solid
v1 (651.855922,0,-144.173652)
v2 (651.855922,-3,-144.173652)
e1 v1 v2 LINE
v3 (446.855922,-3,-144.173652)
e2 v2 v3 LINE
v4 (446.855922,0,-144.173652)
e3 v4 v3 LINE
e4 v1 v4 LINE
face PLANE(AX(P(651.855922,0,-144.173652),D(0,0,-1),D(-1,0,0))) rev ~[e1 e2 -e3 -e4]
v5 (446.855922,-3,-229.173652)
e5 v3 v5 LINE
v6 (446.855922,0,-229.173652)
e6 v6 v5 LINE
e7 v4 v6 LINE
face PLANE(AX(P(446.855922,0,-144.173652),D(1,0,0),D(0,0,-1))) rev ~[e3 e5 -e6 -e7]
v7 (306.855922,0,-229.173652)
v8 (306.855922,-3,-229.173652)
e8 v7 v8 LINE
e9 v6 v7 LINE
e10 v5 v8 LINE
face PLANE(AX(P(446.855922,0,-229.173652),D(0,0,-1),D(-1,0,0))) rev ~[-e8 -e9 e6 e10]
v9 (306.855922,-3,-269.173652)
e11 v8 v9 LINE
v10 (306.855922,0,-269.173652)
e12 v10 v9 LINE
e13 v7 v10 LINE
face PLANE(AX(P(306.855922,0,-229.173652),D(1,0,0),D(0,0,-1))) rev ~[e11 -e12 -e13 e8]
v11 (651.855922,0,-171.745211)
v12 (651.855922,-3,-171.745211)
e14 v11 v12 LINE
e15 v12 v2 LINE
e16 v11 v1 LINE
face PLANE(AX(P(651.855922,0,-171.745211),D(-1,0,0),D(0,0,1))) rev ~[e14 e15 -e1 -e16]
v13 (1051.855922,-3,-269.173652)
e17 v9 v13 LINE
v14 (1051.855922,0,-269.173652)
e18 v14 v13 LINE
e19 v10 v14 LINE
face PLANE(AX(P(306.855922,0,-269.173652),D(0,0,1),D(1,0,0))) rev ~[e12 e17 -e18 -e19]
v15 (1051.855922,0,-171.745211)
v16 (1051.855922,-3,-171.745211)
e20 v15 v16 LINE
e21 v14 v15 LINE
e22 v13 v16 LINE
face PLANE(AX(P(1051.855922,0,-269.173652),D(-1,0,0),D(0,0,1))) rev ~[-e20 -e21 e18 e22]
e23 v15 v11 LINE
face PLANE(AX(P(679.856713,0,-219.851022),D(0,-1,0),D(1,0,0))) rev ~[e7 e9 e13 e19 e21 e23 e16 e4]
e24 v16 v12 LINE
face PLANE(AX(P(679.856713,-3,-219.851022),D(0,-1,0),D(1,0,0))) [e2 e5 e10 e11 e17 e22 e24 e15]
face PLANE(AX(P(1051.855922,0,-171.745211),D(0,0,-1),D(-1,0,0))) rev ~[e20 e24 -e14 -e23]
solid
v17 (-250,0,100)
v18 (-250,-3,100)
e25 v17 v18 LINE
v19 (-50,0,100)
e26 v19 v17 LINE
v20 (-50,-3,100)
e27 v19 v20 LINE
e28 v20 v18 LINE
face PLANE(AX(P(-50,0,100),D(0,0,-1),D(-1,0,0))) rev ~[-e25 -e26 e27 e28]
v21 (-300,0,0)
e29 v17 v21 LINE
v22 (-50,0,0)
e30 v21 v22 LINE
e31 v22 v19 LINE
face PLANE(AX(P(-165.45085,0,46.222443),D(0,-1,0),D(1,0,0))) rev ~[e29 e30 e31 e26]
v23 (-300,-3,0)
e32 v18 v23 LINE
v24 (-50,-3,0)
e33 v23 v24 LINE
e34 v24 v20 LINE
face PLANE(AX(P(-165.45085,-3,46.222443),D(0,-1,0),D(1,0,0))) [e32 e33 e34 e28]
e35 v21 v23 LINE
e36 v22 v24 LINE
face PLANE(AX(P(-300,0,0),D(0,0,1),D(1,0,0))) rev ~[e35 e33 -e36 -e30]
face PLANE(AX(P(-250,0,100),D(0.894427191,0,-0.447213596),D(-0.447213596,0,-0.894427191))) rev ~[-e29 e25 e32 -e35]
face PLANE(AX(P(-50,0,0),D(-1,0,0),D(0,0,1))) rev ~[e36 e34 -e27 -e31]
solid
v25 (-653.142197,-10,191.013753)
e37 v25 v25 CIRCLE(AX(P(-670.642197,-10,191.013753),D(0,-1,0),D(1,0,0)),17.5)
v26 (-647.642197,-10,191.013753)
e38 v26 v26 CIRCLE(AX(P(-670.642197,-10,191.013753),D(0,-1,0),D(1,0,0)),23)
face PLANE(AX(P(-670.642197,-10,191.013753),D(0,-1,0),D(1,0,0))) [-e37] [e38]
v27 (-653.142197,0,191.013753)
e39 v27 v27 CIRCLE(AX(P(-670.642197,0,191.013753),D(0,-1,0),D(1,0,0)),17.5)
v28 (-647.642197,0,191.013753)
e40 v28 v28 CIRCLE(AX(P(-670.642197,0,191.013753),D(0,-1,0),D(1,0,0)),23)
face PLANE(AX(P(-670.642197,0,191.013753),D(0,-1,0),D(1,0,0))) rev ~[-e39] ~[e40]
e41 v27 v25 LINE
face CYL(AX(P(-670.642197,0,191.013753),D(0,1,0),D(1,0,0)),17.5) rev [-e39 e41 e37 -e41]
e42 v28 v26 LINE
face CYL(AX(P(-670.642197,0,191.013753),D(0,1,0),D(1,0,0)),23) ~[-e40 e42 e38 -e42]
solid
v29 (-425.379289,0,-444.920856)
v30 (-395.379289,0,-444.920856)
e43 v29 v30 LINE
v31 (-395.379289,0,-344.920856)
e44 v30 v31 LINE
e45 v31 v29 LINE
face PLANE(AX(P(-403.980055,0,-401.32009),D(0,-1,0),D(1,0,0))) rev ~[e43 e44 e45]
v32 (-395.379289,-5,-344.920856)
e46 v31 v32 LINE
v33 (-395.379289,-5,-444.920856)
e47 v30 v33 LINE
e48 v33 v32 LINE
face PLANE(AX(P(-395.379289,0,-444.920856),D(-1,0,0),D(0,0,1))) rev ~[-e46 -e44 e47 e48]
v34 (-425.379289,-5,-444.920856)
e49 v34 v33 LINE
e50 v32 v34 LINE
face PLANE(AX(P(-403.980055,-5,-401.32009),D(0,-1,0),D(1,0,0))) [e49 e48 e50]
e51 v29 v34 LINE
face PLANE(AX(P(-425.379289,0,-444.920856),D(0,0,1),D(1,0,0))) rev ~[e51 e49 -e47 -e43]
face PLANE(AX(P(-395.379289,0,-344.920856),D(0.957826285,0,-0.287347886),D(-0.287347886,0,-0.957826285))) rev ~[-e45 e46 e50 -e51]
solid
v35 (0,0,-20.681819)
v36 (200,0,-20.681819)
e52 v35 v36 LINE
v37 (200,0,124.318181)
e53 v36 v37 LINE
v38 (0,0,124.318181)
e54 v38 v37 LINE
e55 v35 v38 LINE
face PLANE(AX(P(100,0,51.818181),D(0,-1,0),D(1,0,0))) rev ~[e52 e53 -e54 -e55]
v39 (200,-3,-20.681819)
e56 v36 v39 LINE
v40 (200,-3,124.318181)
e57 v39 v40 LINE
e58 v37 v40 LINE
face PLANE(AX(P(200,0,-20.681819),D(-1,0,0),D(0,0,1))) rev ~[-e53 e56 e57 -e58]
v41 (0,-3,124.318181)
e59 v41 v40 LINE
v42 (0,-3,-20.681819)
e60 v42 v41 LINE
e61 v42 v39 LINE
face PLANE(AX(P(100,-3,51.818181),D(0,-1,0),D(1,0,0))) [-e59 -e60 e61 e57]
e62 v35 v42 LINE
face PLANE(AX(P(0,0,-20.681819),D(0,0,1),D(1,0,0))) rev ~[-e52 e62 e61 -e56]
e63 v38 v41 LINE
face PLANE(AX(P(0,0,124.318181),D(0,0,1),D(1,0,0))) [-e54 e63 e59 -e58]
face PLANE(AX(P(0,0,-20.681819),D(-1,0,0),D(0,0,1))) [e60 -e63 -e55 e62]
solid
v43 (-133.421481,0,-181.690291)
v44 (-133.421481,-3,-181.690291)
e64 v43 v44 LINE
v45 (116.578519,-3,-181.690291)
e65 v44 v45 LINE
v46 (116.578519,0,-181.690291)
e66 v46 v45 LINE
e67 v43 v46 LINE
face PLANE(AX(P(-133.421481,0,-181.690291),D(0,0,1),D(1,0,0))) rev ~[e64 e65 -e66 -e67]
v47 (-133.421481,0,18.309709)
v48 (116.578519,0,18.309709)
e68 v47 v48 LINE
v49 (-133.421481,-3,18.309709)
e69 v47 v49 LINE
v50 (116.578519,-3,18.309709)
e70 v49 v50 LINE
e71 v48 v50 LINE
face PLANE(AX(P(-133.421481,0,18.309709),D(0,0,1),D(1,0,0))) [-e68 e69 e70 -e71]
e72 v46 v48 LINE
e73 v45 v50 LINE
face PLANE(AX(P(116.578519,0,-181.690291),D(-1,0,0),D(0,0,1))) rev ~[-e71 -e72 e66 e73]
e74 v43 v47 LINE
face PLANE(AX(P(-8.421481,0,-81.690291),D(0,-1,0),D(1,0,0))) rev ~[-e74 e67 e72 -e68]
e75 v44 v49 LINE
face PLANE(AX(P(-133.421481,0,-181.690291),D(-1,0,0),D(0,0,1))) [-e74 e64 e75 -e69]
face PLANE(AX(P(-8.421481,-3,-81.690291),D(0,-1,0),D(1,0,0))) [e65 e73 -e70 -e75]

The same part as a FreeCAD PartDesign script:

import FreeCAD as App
import Part
import Sketcher

V = App.Vector


def add_polygon(sketch, points):
    """Adds a closed chain of lines whose ends are joined by coincident constraints."""
    first, n = sketch.GeometryCount, len(points)
    for a, b in zip(points, points[1:] + points[:1]):
        sketch.addGeometry(Part.LineSegment(App.Vector(*a, 0), App.Vector(*b, 0)), False)
    for i in range(n):
        sketch.addConstraint(Sketcher.Constraint("Coincident", first + i, 2, first + (i + 1) % n, 1))

doc = App.newDocument("Part")
body = doc.addObject("PartDesign::Body", "Body")

sketch1 = body.newObject("Sketcher::SketchObject", "Sketch")
sketch1.AttachmentSupport = (doc.getObject("XZ_Plane"), [""])
sketch1.MapMode = "FlatFace"
add_polygon(sketch1, [(0, 124.318181), (0, -20.681819), (200, -20.681819), (200, 124.318181)])
sketch1.addConstraint([
    Sketcher.Constraint("Vertical", 0),
    Sketcher.Constraint("Horizontal", 1),
    Sketcher.Constraint("Vertical", 2),
    Sketcher.Constraint("Horizontal", 3),
    Sketcher.Constraint("PointOnObject", 0, 2, -2),
    Sketcher.Constraint("DistanceX", 1, 1, 1, 2, 200.0),
    Sketcher.Constraint("DistanceY", 0, 2, 0, 1, 145.0),
    Sketcher.Constraint("DistanceY", 0, 2, -1, 1, 20.681819),
])
pad1 = body.newObject("PartDesign::Pad", "Pad")
pad1.Profile = sketch1
pad1.Length = 3
body2 = doc.addObject("PartDesign::Body", "Body001")

sketch2 = body2.newObject("Sketcher::SketchObject", "Sketch001")
sketch2.AttachmentSupport = (doc.getObject("XZ_Plane001"), [""])
sketch2.MapMode = "FlatFace"
add_polygon(sketch2, [(-300, 0), (-50, 0), (-50, 100), (-250, 100)])
sketch2.addConstraint([
    Sketcher.Constraint("Horizontal", 0),
    Sketcher.Constraint("Vertical", 1),
    Sketcher.Constraint("Horizontal", 2),
    Sketcher.Constraint("PointOnObject", 0, 2, -1),
    Sketcher.Constraint("DistanceX", 0, 1, 0, 2, 250.0),
    Sketcher.Constraint("DistanceX", 2, 2, 2, 1, 200.0),
    Sketcher.Constraint("DistanceY", 1, 1, 1, 2, 100.0),
    Sketcher.Constraint("DistanceX", 0, 2, -1, 1, 50.0),
])
pad2 = body2.newObject("PartDesign::Pad", "Pad001")
pad2.Profile = sketch2
pad2.Length = 3
body3 = doc.addObject("PartDesign::Body", "Body002")

sketch3 = body3.newObject("Sketcher::SketchObject", "Sketch002")
sketch3.AttachmentSupport = (doc.getObject("XZ_Plane002"), [""])
sketch3.MapMode = "FlatFace"
add_polygon(sketch3, [(-133.421481, 18.309709), (-133.421481, -181.690291), (116.578519, -181.690291), (116.578519, 18.309709)])
sketch3.addConstraint([
    Sketcher.Constraint("Vertical", 0),
    Sketcher.Constraint("Horizontal", 1),
    Sketcher.Constraint("Vertical", 2),
    Sketcher.Constraint("Horizontal", 3),
    Sketcher.Constraint("DistanceX", 1, 1, 1, 2, 250.0),
    Sketcher.Constraint("DistanceY", 0, 2, 0, 1, 200.0),
    Sketcher.Constraint("DistanceX", 0, 2, -1, 1, 133.421481),
    Sketcher.Constraint("DistanceY", 0, 2, -1, 1, 181.690291),
])
pad3 = body3.newObject("PartDesign::Pad", "Pad002")
pad3.Profile = sketch3
pad3.Length = 3
body4 = doc.addObject("PartDesign::Body", "Body003")

sketch4 = body4.newObject("Sketcher::SketchObject", "Sketch003")
sketch4.AttachmentSupport = (doc.getObject("XZ_Plane003"), [""])
sketch4.MapMode = "FlatFace"
add_polygon(sketch4, [(651.855922, -144.173652), (446.855922, -144.173652), (446.855922, -229.173652), (306.855922, -229.173652), (306.855922, -269.173652), (1051.855922, -269.173652), (1051.855922, -171.745211), (651.855922, -171.745211)])
sketch4.addConstraint([
    Sketcher.Constraint("Horizontal", 0),
    Sketcher.Constraint("Vertical", 1),
    Sketcher.Constraint("Horizontal", 2),
    Sketcher.Constraint("Vertical", 3),
    Sketcher.Constraint("Horizontal", 4),
    Sketcher.Constraint("Vertical", 5),
    Sketcher.Constraint("Horizontal", 6),
    Sketcher.Constraint("Vertical", 7),
    Sketcher.Constraint("DistanceX", 0, 2, 0, 1, 205.0),
    Sketcher.Constraint("DistanceX", 2, 2, 2, 1, 140.0),
    Sketcher.Constraint("DistanceX", 4, 1, 4, 2, 745.0),
    Sketcher.Constraint("DistanceY", 1, 2, 1, 1, 85.0),
    Sketcher.Constraint("DistanceY", 3, 2, 3, 1, 40.0),
    Sketcher.Constraint("DistanceY", 5, 1, 5, 2, 97.428441),
    Sketcher.Constraint("DistanceX", -1, 1, 0, 2, 446.855922),
    Sketcher.Constraint("DistanceY", 0, 2, -1, 1, 144.173652),
])
pad4 = body4.newObject("PartDesign::Pad", "Pad003")
pad4.Profile = sketch4
pad4.Length = 3
body5 = doc.addObject("PartDesign::Body", "Body004")

sketch5 = body5.newObject("Sketcher::SketchObject", "Sketch004")
sketch5.AttachmentSupport = (doc.getObject("XZ_Plane004"), [""])
sketch5.MapMode = "FlatFace"
add_polygon(sketch5, [(-395.379289, -344.920856), (-425.379289, -444.920856), (-395.379289, -444.920856)])
sketch5.addConstraint([
    Sketcher.Constraint("Horizontal", 1),
    Sketcher.Constraint("Vertical", 2),
    Sketcher.Constraint("DistanceX", 1, 1, 1, 2, 30.0),
    Sketcher.Constraint("DistanceY", 2, 1, 2, 2, 100.0),
    Sketcher.Constraint("DistanceX", 0, 2, -1, 1, 425.379289),
    Sketcher.Constraint("DistanceY", 0, 2, -1, 1, 444.920856),
])
pad5 = body5.newObject("PartDesign::Pad", "Pad004")
pad5.Profile = sketch5
pad5.Length = 5
body6 = doc.addObject("PartDesign::Body", "Body005")

sketch6 = body6.newObject("Sketcher::SketchObject", "Sketch005")
sketch6.AttachmentSupport = (doc.getObject("XZ_Plane005"), [""])
sketch6.MapMode = "FlatFace"
sketch6.addGeometry([
    Part.Circle(V(-670.642197, 191.013753, 0), V(0, 0, 1), 23),
    Part.Circle(V(-670.642197, 191.013753, 0), V(0, 0, 1), 17.5),
], False)
sketch6.addConstraint([
    Sketcher.Constraint("Coincident", 1, 3, 0, 3),
    Sketcher.Constraint("Diameter", 0, 46.0),
    Sketcher.Constraint("Diameter", 1, 35.0),
    Sketcher.Constraint("DistanceX", 0, 3, -1, 1, 670.642197),
    Sketcher.Constraint("DistanceY", -1, 1, 0, 3, 191.013753),
])
pad6 = body6.newObject("PartDesign::Pad", "Pad005")
pad6.Profile = sketch6
pad6.Length = 10

doc.recompute()
